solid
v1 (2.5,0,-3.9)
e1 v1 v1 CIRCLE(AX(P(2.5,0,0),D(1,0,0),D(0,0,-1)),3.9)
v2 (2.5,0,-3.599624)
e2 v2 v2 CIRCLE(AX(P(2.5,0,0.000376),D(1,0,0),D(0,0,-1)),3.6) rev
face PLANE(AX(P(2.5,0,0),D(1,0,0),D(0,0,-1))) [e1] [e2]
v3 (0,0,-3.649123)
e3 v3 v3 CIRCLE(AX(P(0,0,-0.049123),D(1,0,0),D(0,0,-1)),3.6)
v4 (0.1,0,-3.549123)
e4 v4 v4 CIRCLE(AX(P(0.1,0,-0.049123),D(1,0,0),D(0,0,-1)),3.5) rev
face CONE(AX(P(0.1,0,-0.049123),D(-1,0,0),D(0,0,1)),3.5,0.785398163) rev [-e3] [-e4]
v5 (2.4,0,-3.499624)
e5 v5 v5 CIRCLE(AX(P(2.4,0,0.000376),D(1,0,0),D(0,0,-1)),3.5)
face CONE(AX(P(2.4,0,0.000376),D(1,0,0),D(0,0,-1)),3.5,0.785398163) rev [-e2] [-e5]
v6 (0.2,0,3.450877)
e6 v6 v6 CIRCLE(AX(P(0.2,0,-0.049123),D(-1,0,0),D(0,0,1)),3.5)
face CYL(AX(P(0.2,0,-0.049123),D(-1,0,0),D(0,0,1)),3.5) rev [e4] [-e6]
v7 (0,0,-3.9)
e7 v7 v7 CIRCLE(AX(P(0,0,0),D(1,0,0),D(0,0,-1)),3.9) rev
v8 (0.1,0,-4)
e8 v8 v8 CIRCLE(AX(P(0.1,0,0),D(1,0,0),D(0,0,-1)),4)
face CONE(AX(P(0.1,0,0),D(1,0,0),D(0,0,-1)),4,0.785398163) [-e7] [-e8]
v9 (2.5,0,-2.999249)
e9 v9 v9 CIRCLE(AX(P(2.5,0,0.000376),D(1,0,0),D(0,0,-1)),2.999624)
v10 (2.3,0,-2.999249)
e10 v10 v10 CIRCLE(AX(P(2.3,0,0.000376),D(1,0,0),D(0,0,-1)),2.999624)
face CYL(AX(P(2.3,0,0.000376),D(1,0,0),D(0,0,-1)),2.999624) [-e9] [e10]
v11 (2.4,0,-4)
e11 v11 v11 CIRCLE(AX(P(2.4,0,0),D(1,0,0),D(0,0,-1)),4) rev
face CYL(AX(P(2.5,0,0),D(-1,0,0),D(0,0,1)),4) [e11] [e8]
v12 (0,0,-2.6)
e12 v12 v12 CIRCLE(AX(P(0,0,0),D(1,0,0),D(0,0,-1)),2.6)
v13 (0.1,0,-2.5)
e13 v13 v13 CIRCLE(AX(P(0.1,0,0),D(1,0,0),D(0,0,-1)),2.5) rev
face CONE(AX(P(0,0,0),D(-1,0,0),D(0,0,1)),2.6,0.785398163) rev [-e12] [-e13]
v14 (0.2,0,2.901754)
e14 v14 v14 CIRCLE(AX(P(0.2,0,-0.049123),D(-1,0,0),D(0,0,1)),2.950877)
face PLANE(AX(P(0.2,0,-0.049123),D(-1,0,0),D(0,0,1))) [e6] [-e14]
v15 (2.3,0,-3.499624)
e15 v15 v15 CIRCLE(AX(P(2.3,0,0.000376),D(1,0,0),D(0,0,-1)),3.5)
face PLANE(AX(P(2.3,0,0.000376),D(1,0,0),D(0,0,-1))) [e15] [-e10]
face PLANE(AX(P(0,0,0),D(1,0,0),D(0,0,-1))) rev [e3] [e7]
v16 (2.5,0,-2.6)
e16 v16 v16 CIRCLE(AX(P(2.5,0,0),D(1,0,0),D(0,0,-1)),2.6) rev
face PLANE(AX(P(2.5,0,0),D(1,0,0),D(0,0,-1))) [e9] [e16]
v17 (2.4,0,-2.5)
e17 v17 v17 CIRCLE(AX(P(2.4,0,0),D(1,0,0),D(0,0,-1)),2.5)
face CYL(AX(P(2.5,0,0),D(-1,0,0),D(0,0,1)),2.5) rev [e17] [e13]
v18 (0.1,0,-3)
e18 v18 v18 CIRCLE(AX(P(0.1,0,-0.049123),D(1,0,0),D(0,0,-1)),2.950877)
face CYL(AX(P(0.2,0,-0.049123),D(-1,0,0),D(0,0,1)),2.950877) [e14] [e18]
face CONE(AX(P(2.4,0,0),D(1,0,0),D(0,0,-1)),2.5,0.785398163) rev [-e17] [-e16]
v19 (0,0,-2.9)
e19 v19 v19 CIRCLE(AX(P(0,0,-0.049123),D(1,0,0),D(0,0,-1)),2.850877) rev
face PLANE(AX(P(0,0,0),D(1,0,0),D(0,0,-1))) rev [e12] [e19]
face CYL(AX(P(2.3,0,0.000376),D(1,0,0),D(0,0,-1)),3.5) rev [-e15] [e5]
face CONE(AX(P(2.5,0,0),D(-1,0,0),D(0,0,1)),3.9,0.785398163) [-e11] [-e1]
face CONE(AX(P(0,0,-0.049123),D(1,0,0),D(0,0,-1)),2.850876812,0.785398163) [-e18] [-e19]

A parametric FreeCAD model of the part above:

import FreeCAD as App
import Part
import Sketcher
Q = App.Units.Quantity


def edges_at(feature, points):
    """Names of the edges that pass closest to the given points."""
    edges = feature.Shape.Edges
    near = lambda p: min(range(len(edges)), key=lambda i: edges[i].distToShape(Part.Vertex(*p))[0])
    return sorted({f"Edge{near(p) + 1}" for p in points})

doc = App.newDocument("Part")
body = doc.addObject("PartDesign::Body", "Body")

sketch1 = body.newObject("Sketcher::SketchObject", "Sketch")
sketch1.AttachmentSupport = (doc.getObject("YZ_Plane"), [""])
sketch1.MapMode = "FlatFace"
sketch1.addGeometry([
    Part.Circle(App.Vector(0, 0, 0), App.Vector(0, 0, 1), 4),
    Part.Circle(App.Vector(0, 0, 0), App.Vector(0, 0, 1), 2.5),
], False)
sketch1.addConstraint([
    Sketcher.Constraint("Coincident", 0, 3, -1, 1),
    Sketcher.Constraint("Coincident", 1, 3, -1, 1),
    Sketcher.Constraint("Diameter", 0, Q("8 mm")),
    Sketcher.Constraint("Diameter", 1, Q("5 mm")),
])
pad1 = body.newObject("PartDesign::Pad", "Pad")
pad1.Profile = sketch1
pad1.Length = 2.5

sketch2 = body.newObject("Sketcher::SketchObject", "Sketch001")
sketch2.AttachmentSupport = (doc.getObject("YZ_Plane"), [""])
sketch2.MapMode = "FlatFace"
sketch2.AttachmentOffset = App.Placement(App.Vector(0, 0, 2.5), App.Rotation())
sketch2.addGeometry([
    Part.Circle(App.Vector(0, 0, 0), App.Vector(0, 0, 1), 3.5),
    Part.Circle(App.Vector(0, 0, 0), App.Vector(0, 0, 1), 3),
], False)
sketch2.addConstraint([
    Sketcher.Constraint("Coincident", 1, 3, 0, 3),
    Sketcher.Constraint("PointOnObject", 0, 3, -2),
    Sketcher.Constraint("Diameter", 0, Q("7 mm")),
    Sketcher.Constraint("Diameter", 1, Q("5.999249 mm")),
    Sketcher.Constraint("DistanceY", -1, 1, 0, 3, Q("0.000376 mm")),
])
pocket1 = body.newObject("PartDesign::Pocket", "Pocket")
pocket1.Profile = sketch2
pocket1.Length = 0.2

sketch3 = body.newObject("Sketcher::SketchObject", "Sketch002")
sketch3.AttachmentSupport = (doc.getObject("YZ_Plane"), [""])
sketch3.MapMode = "FlatFace"
sketch3.addGeometry([
    Part.Circle(App.Vector(0, 0, 0), App.Vector(0, 0, 1), 3.5),
    Part.Circle(App.Vector(0, 0, 0), App.Vector(0, 0, 1), 3),
], False)
sketch3.addConstraint([
    Sketcher.Constraint("Coincident", 1, 3, 0, 3),
    Sketcher.Constraint("PointOnObject", 0, 3, -2),
    Sketcher.Constraint("Diameter", 0, Q("7 mm")),
    Sketcher.Constraint("Diameter", 1, Q("5.901754 mm")),
    Sketcher.Constraint("DistanceY", 0, 3, -1, 1, Q("0.049123 mm")),
])
pocket2 = body.newObject("PartDesign::Pocket", "Pocket001")
pocket2.Profile = sketch3
pocket2.Length = 0.2
pocket2.Reversed = True
doc.recompute()

chamfer = body.newObject("PartDesign::Chamfer", "Chamfer")
chamfer.Base = (pocket2, edges_at(pocket2, [
    (2.5, 0, 3.5),
    (0, 0, 4),
    (0, 0, -3.549),
    (0, 0, -3),
    (2.5, 0, 4),
    (0, 0, 2.5),
    (2.5, 0, 2.5),
]))
chamfer.Size = 0.1

doc.recompute()
